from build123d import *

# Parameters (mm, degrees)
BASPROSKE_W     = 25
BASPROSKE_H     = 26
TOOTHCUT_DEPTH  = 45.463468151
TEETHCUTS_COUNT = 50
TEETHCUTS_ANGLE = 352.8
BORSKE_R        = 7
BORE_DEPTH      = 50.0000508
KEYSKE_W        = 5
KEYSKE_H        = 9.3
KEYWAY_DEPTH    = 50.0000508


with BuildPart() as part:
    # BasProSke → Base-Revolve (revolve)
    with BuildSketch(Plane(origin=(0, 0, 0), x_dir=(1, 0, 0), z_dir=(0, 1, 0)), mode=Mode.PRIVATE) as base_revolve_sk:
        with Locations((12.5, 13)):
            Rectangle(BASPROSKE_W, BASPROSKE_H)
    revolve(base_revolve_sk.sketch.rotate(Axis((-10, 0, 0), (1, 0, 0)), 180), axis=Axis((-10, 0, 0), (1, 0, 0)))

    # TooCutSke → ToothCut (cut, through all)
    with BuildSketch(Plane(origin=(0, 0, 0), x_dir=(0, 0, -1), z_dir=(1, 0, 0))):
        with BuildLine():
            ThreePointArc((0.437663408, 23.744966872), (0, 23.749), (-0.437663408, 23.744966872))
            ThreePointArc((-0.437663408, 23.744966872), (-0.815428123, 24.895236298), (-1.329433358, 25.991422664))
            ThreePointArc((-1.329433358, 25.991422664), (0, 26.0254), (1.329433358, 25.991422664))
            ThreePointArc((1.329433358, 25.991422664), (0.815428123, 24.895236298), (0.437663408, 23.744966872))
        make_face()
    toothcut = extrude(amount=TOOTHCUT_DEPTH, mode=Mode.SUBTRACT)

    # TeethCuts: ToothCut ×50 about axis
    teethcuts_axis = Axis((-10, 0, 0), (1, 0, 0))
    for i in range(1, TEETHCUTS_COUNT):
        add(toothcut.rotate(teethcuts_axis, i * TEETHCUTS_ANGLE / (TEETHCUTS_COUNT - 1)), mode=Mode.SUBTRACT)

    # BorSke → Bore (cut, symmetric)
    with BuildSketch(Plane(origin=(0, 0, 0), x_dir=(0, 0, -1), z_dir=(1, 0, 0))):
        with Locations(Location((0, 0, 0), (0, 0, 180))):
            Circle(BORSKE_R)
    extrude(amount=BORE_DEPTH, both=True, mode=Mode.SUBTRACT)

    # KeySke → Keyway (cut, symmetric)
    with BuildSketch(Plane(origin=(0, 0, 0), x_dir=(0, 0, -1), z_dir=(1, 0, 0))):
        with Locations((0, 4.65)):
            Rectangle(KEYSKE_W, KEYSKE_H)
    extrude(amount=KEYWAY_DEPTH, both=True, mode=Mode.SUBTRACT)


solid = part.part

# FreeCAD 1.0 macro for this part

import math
import FreeCAD as App
import Part
import Sketcher
from FreeCAD import Vector
Q = App.Units.Quantity

doc = App.newDocument("Part")
params = doc.addObject("Spreadsheet::Sheet", "Params")
for row, (alias, value) in enumerate([
    ("sketch1_width", "25 mm"),
    ("sketch1_height", "26 mm"),
    ("revolution_angle", "360 deg"),
    ("sketch2_radius", "10 mm"),
    ("sketch3_diameter", "14 mm"),
    ("pocket2_length", "100.000102 mm"),
    ("sketch4_height", "5 mm"),
    ("sketch4_width", "9.3 mm"),
    ("pocket3_length", "100.000102 mm"),
], start=1):
    params.set(f"A{row}", alias)
    params.set(f"B{row}", "=" + value)
    params.setAlias(f"B{row}", alias)

body = doc.addObject("PartDesign::Body", "Body")

# Sketch on XZ plane
sketch1 = body.newObject("Sketcher::SketchObject", "Sketch")
sketch1.AttachmentSupport = (doc.getObject("XZ_Plane"), [""])
sketch1.MapMode = "FlatFace"
sketch1.addGeometry([
    Part.LineSegment(Vector(0, -26, 0), Vector(0, 0, 0)),
    Part.LineSegment(Vector(0, 0, 0), Vector(25, 0, 0)),
    Part.LineSegment(Vector(25, 0, 0), Vector(25, -26, 0)),
    Part.LineSegment(Vector(25, -26, 0), Vector(0, -26, 0)),
], False)
sketch1.addConstraint([
    Sketcher.Constraint("Coincident", 0, 2, 1, 1),
    Sketcher.Constraint("Coincident", 1, 2, 2, 1),
    Sketcher.Constraint("Coincident", 2, 2, 3, 1),
    Sketcher.Constraint("Coincident", 3, 2, 0, 1),
    Sketcher.Constraint("Vertical", 0),
    Sketcher.Constraint("Horizontal", 1),
    Sketcher.Constraint("Vertical", 2),
    Sketcher.Constraint("Horizontal", 3),
    Sketcher.Constraint("Coincident", 0, 2, -1, 1),
    Sketcher.Constraint("DistanceX", 1, 1, 1, 2, Q("25 mm")),
    Sketcher.Constraint("DistanceY", 0, 1, 0, 2, Q("26 mm")),
])
sketch1.setExpression("Constraints[9]", "Params.sketch1_width")
sketch1.setExpression("Constraints[10]", "Params.sketch1_height")
revolution = body.newObject("PartDesign::Revolution", "Revolution")
revolution.Profile = sketch1
revolution.ReferenceAxis = (sketch1, ["H_Axis"])
revolution.setExpression("Angle", "Params.revolution_angle")

# Sketch on YZ plane
sketch2 = body.newObject("Sketcher::SketchObject", "Sketch001")
sketch2.AttachmentSupport = (doc.getObject("YZ_Plane"), [""])
sketch2.MapMode = "FlatFace"
sketch2.addGeometry([
    Part.ArcOfCircle(Part.Circle(Vector(-0.000001, 0, 0), Vector(0, 0, 1), 23.749001), math.radians(-1.055947), math.radians(1.055947)),
    Part.ArcOfCircle(Part.Circle(Vector(21.20564, -10.109882, 0), Vector(0, 0, 1), 10), math.radians(61.407413), math.radians(75.289649)),
    Part.ArcOfCircle(Part.Circle(Vector(0, 0, 0), Vector(0, 0, 1), 26.0254), math.radians(-2.928066), math.radians(2.928066)),
    Part.ArcOfCircle(Part.Circle(Vector(21.20564, 10.109882, 0), Vector(0, 0, 1), 10), math.radians(-75.289649), math.radians(-61.407413)),
], False)
sketch2.addConstraint([
    Sketcher.Constraint("Coincident", 0, 1, 1, 2),
    Sketcher.Constraint("Coincident", 1, 1, 2, 1),
    Sketcher.Constraint("Coincident", 2, 2, 3, 2),
    Sketcher.Constraint("Coincident", 3, 1, 0, 2),
    Sketcher.Constraint("Coincident", 0, 3, -1, 1),
    Sketcher.Constraint("Coincident", 2, 3, -1, 1),
    Sketcher.Constraint("Equal", 1, 3),
    Sketcher.Constraint("Symmetric", 1, 3, 3, 3, -1),
    Sketcher.Constraint("Radius", 1, Q("10 mm")),
    Sketcher.Constraint("Radius", 0, Q("23.749001 mm")),
    Sketcher.Constraint("Radius", 2, Q("26.0254 mm")),
    Sketcher.Constraint("DistanceX", -1, 1, 1, 3, Q("21.20564 mm")),
    Sketcher.Constraint("DistanceX", 0, 3, 0, 1, Q("23.744968 mm")),
])
sketch2.setExpression("Constraints[8]", "Params.sketch2_radius")
pocket1 = body.newObject("PartDesign::Pocket", "Pocket")
pocket1.Profile = sketch2
pocket1.Type = "ThroughAll"
pocket1.Reversed = True
doc.recompute()

polarpattern = body.newObject("PartDesign::PolarPattern", "PolarPattern")
polarpattern.Originals = [pocket1]
polarpattern.Axis = (doc.getObject("X_Axis"), [""])
polarpattern.Angle = 360
polarpattern.Occurrences = 50
body.Tip = polarpattern

# Sketch on YZ plane
sketch3 = body.newObject("Sketcher::SketchObject", "Sketch002")
sketch3.AttachmentSupport = (doc.getObject("YZ_Plane"), [""])
sketch3.MapMode = "FlatFace"
sketch3.addGeometry(Part.Circle(Vector(0, 0, 0), Vector(0, 0, 1), 7), False)
sketch3.addConstraint([
    Sketcher.Constraint("Coincident", 0, 3, -1, 1),
    Sketcher.Constraint("Diameter", 0, Q("14 mm")),
])
sketch3.setExpression("Constraints[1]", "Params.sketch3_diameter")
pocket2 = body.newObject("PartDesign::Pocket", "Pocket001")
pocket2.Profile = sketch3
pocket2.setExpression("Length", "Params.pocket2_length")
pocket2.Midplane = True

# Sketch on YZ plane
sketch4 = body.newObject("Sketcher::SketchObject", "Sketch003")
sketch4.AttachmentSupport = (doc.getObject("YZ_Plane"), [""])
sketch4.MapMode = "FlatFace"
sketch4.addGeometry([
    Part.LineSegment(Vector(9.3, 2.5, 0), Vector(0, 2.5, 0)),
    Part.LineSegment(Vector(0, 2.5, 0), Vector(0, -2.5, 0)),
    Part.LineSegment(Vector(0, -2.5, 0), Vector(9.3, -2.5, 0)),
    Part.LineSegment(Vector(9.3, -2.5, 0), Vector(9.3, 2.5, 0)),
], False)
sketch4.addConstraint([
    Sketcher.Constraint("Coincident", 0, 2, 1, 1),
    Sketcher.Constraint("Coincident", 1, 2, 2, 1),
    Sketcher.Constraint("Coincident", 2, 2, 3, 1),
    Sketcher.Constraint("Coincident", 3, 2, 0, 1),
    Sketcher.Constraint("Horizontal", 0),
    Sketcher.Constraint("Vertical", 1),
    Sketcher.Constraint("Horizontal", 2),
    Sketcher.Constraint("Vertical", 3),
    Sketcher.Constraint("Symmetric", 0, 2, 1, 2, -1, 1),
    Sketcher.Constraint("DistanceY", 1, 2, 1, 1, Q("5 mm")),
    Sketcher.Constraint("DistanceX", 0, 2, 0, 1, Q("9.3 mm")),
])
sketch4.setExpression("Constraints[9]", "Params.sketch4_height")
sketch4.setExpression("Constraints[10]", "Params.sketch4_width")
pocket3 = body.newObject("PartDesign::Pocket", "Pocket002")
pocket3.Profile = sketch4
pocket3.setExpression("Length", "Params.pocket3_length")
pocket3.Midplane = True

doc.recompute()
